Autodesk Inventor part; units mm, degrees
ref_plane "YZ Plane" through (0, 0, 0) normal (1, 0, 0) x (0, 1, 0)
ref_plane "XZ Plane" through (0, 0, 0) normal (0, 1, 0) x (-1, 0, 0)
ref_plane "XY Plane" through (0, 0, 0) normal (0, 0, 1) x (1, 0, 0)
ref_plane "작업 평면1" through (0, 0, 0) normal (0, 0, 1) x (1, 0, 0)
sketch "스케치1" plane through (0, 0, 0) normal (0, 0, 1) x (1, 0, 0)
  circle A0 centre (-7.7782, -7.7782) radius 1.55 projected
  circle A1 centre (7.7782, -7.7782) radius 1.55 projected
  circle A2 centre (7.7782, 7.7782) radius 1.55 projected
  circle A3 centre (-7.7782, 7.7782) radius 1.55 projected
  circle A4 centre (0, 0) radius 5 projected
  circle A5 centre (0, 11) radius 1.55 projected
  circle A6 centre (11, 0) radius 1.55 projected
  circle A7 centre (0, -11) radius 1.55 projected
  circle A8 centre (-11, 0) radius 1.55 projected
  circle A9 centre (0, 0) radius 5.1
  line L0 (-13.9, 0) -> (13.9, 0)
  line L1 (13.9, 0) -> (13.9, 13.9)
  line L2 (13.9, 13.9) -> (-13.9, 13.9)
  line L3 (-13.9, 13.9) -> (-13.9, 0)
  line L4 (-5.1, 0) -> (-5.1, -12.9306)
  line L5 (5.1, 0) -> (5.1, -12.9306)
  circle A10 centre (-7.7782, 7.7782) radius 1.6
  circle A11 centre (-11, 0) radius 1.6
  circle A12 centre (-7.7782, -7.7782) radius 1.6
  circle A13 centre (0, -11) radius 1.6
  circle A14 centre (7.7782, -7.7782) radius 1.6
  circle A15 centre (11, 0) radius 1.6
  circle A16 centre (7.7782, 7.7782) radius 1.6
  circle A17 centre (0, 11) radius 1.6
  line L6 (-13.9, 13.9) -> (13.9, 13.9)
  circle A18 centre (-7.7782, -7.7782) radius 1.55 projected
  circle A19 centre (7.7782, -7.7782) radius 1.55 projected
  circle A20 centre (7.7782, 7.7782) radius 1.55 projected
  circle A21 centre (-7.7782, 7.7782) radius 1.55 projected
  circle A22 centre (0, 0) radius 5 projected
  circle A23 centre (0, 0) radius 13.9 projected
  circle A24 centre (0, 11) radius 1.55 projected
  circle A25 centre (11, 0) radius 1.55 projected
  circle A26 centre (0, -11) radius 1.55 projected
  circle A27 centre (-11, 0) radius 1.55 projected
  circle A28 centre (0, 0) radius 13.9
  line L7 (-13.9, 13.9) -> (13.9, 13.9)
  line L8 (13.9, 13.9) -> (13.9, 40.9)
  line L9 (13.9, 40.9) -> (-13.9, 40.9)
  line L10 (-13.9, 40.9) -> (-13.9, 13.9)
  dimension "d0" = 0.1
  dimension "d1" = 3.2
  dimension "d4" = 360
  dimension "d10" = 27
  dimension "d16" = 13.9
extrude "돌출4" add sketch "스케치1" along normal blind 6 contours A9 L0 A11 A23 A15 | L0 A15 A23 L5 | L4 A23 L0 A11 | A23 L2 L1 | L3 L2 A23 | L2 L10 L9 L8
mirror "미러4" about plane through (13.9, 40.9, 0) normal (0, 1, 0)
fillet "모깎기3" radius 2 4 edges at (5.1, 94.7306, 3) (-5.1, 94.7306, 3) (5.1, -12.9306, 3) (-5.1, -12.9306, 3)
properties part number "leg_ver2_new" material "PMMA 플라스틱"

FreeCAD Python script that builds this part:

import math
import FreeCAD as App
import Part
import Sketcher


def edges_at(feature, points):
    """Names of the edges that pass closest to the given points."""
    edges = feature.Shape.Edges
    near = lambda p: min(range(len(edges)), key=lambda i: edges[i].distToShape(Part.Vertex(*p))[0])
    return sorted({f"Edge{near(p) + 1}" for p in points})

doc = App.newDocument("Part")
body = doc.addObject("PartDesign::Body", "Body")

# Sketch on XY plane
sketch1 = body.newObject("Sketcher::SketchObject", "Sketch")
sketch1.AttachmentSupport = (doc.getObject("XY_Plane"), [""])
sketch1.MapMode = "FlatFace"
sketch1.addGeometry([
    Part.ArcOfCircle(Part.Circle(App.Vector(0, 0, 0), App.Vector(0, 0, 1), 5.1), math.radians(0), math.radians(180)),  # 0
    Part.LineSegment(App.Vector(5.1, 0, 0), App.Vector(5.1, -12.9306, 0)),  # 1
    Part.ArcOfCircle(Part.Circle(App.Vector(0, 0, 0), App.Vector(0, 0, 1), 13.9), math.radians(-68.475067), math.radians(0)),  # 2
    Part.LineSegment(App.Vector(13.9, 0, 0), App.Vector(13.9, 40.9, 0)),  # 3
    Part.LineSegment(App.Vector(13.9, 40.9, 0), App.Vector(-13.9, 40.9, 0)),  # 4
    Part.LineSegment(App.Vector(-13.9, 40.9, 0), App.Vector(-13.9, 0, 0)),  # 5
    Part.ArcOfCircle(Part.Circle(App.Vector(0, 0, 0), App.Vector(0, 0, 1), 13.9), math.radians(180), math.radians(248.475067)),  # 6
    Part.LineSegment(App.Vector(-5.1, -12.9306, 0), App.Vector(-5.1, 0, 0)),  # 7
    Part.Circle(App.Vector(-11, 0, 0), App.Vector(0, 0, 1), 1.6),  # 8
    Part.Circle(App.Vector(11, 0, 0), App.Vector(0, 0, 1), 1.6),  # 9
    Part.Circle(App.Vector(-7.7782, 7.7782, 0), App.Vector(0, 0, 1), 1.6),  # 10
    Part.Circle(App.Vector(0, 11, 0), App.Vector(0, 0, 1), 1.6),  # 11
    Part.Circle(App.Vector(7.7782, 7.7782, 0), App.Vector(0, 0, 1), 1.6),  # 12
    Part.Circle(App.Vector(-7.7782, -7.7782, 0), App.Vector(0, 0, 1), 1.6),  # 13
    Part.Circle(App.Vector(7.7782, -7.7782, 0), App.Vector(0, 0, 1), 1.6),  # 14
], False)
sketch1.addConstraint([
    Sketcher.Constraint("Tangent", 0, 1, 1, 1),
    Sketcher.Constraint("Coincident", 1, 2, 2, 1),
    Sketcher.Constraint("Tangent", 2, 2, 3, 1),
    Sketcher.Constraint("Coincident", 3, 2, 4, 1),
    Sketcher.Constraint("Coincident", 4, 2, 5, 1),
    Sketcher.Constraint("Tangent", 5, 2, 6, 1),
    Sketcher.Constraint("Coincident", 6, 2, 7, 1),
    Sketcher.Constraint("Tangent", 7, 2, 0, 2),
    Sketcher.Constraint("Vertical", 1),
    Sketcher.Constraint("Vertical", 3),
    Sketcher.Constraint("Horizontal", 4),
    Sketcher.Constraint("Vertical", 5),
    Sketcher.Constraint("Vertical", 7),
    Sketcher.Constraint("Coincident", 0, 3, -1, 1),
    Sketcher.Constraint("Coincident", 2, 3, -1, 1),
    Sketcher.Constraint("Coincident", 6, 3, -1, 1),
    Sketcher.Constraint("Equal", 2, 6),
    Sketcher.Constraint("Equal", 8, 9),
    Sketcher.Constraint("Equal", 9, 10),
    Sketcher.Constraint("Equal", 10, 11),
    Sketcher.Constraint("Equal", 11, 12),
    Sketcher.Constraint("Equal", 12, 13),
    Sketcher.Constraint("Equal", 13, 14),
    Sketcher.Constraint("Symmetric", 8, 3, 9, 3, -1, 1),
    Sketcher.Constraint("Symmetric", 12, 3, 13, 3, -1, 1),
    Sketcher.Constraint("Symmetric", 10, 3, 14, 3, -1, 1),
    Sketcher.Constraint("Symmetric", 10, 3, 12, 3, -2),
    Sketcher.Constraint("PointOnObject", 8, 3, -1),
    Sketcher.Constraint("PointOnObject", 11, 3, -2),
    Sketcher.Constraint("Diameter", 8, 3.2),
    Sketcher.Constraint("Radius", 2, 13.9),
    Sketcher.Constraint("Radius", 0, 5.1),
    Sketcher.Constraint("DistanceY", 3, 1, 3, 2, 40.9),
    Sketcher.Constraint("DistanceX", 8, 3, -1, 1, 11.0),
    Sketcher.Constraint("DistanceY", -1, 1, 11, 3, 11.0),
    Sketcher.Constraint("DistanceX", 10, 3, -1, 1, 7.7782),
    Sketcher.Constraint("DistanceY", -1, 1, 10, 3, 7.7782),
])
pad1 = body.newObject("PartDesign::Pad", "Pad")
pad1.Profile = sketch1
pad1.Length = 6
doc.recompute()

datumplane = body.newObject("PartDesign::Plane", "DatumPlane")
datumplane.AttachmentSupport = (doc.getObject("XZ_Plane"), [""])
datumplane.MapMode = "FlatFace"
datumplane.AttachmentOffset = App.Placement(App.Vector(0, 0, -40.9), App.Rotation())
mirrored = body.newObject("PartDesign::Mirrored", "Mirrored")
mirrored.TransformMode = "Transform body"
mirrored.MirrorPlane = (datumplane, [""])
body.Tip = mirrored
doc.recompute()

fillet = body.newObject("PartDesign::Fillet", "Fillet")
fillet.Base = (mirrored, edges_at(mirrored, [
    (5.1, 94.731, 3),
    (-5.1, 94.731, 3),
    (5.1, -12.931, 3),
    (-5.1, -12.931, 3),
]))
fillet.Radius = 2

doc.recompute()
